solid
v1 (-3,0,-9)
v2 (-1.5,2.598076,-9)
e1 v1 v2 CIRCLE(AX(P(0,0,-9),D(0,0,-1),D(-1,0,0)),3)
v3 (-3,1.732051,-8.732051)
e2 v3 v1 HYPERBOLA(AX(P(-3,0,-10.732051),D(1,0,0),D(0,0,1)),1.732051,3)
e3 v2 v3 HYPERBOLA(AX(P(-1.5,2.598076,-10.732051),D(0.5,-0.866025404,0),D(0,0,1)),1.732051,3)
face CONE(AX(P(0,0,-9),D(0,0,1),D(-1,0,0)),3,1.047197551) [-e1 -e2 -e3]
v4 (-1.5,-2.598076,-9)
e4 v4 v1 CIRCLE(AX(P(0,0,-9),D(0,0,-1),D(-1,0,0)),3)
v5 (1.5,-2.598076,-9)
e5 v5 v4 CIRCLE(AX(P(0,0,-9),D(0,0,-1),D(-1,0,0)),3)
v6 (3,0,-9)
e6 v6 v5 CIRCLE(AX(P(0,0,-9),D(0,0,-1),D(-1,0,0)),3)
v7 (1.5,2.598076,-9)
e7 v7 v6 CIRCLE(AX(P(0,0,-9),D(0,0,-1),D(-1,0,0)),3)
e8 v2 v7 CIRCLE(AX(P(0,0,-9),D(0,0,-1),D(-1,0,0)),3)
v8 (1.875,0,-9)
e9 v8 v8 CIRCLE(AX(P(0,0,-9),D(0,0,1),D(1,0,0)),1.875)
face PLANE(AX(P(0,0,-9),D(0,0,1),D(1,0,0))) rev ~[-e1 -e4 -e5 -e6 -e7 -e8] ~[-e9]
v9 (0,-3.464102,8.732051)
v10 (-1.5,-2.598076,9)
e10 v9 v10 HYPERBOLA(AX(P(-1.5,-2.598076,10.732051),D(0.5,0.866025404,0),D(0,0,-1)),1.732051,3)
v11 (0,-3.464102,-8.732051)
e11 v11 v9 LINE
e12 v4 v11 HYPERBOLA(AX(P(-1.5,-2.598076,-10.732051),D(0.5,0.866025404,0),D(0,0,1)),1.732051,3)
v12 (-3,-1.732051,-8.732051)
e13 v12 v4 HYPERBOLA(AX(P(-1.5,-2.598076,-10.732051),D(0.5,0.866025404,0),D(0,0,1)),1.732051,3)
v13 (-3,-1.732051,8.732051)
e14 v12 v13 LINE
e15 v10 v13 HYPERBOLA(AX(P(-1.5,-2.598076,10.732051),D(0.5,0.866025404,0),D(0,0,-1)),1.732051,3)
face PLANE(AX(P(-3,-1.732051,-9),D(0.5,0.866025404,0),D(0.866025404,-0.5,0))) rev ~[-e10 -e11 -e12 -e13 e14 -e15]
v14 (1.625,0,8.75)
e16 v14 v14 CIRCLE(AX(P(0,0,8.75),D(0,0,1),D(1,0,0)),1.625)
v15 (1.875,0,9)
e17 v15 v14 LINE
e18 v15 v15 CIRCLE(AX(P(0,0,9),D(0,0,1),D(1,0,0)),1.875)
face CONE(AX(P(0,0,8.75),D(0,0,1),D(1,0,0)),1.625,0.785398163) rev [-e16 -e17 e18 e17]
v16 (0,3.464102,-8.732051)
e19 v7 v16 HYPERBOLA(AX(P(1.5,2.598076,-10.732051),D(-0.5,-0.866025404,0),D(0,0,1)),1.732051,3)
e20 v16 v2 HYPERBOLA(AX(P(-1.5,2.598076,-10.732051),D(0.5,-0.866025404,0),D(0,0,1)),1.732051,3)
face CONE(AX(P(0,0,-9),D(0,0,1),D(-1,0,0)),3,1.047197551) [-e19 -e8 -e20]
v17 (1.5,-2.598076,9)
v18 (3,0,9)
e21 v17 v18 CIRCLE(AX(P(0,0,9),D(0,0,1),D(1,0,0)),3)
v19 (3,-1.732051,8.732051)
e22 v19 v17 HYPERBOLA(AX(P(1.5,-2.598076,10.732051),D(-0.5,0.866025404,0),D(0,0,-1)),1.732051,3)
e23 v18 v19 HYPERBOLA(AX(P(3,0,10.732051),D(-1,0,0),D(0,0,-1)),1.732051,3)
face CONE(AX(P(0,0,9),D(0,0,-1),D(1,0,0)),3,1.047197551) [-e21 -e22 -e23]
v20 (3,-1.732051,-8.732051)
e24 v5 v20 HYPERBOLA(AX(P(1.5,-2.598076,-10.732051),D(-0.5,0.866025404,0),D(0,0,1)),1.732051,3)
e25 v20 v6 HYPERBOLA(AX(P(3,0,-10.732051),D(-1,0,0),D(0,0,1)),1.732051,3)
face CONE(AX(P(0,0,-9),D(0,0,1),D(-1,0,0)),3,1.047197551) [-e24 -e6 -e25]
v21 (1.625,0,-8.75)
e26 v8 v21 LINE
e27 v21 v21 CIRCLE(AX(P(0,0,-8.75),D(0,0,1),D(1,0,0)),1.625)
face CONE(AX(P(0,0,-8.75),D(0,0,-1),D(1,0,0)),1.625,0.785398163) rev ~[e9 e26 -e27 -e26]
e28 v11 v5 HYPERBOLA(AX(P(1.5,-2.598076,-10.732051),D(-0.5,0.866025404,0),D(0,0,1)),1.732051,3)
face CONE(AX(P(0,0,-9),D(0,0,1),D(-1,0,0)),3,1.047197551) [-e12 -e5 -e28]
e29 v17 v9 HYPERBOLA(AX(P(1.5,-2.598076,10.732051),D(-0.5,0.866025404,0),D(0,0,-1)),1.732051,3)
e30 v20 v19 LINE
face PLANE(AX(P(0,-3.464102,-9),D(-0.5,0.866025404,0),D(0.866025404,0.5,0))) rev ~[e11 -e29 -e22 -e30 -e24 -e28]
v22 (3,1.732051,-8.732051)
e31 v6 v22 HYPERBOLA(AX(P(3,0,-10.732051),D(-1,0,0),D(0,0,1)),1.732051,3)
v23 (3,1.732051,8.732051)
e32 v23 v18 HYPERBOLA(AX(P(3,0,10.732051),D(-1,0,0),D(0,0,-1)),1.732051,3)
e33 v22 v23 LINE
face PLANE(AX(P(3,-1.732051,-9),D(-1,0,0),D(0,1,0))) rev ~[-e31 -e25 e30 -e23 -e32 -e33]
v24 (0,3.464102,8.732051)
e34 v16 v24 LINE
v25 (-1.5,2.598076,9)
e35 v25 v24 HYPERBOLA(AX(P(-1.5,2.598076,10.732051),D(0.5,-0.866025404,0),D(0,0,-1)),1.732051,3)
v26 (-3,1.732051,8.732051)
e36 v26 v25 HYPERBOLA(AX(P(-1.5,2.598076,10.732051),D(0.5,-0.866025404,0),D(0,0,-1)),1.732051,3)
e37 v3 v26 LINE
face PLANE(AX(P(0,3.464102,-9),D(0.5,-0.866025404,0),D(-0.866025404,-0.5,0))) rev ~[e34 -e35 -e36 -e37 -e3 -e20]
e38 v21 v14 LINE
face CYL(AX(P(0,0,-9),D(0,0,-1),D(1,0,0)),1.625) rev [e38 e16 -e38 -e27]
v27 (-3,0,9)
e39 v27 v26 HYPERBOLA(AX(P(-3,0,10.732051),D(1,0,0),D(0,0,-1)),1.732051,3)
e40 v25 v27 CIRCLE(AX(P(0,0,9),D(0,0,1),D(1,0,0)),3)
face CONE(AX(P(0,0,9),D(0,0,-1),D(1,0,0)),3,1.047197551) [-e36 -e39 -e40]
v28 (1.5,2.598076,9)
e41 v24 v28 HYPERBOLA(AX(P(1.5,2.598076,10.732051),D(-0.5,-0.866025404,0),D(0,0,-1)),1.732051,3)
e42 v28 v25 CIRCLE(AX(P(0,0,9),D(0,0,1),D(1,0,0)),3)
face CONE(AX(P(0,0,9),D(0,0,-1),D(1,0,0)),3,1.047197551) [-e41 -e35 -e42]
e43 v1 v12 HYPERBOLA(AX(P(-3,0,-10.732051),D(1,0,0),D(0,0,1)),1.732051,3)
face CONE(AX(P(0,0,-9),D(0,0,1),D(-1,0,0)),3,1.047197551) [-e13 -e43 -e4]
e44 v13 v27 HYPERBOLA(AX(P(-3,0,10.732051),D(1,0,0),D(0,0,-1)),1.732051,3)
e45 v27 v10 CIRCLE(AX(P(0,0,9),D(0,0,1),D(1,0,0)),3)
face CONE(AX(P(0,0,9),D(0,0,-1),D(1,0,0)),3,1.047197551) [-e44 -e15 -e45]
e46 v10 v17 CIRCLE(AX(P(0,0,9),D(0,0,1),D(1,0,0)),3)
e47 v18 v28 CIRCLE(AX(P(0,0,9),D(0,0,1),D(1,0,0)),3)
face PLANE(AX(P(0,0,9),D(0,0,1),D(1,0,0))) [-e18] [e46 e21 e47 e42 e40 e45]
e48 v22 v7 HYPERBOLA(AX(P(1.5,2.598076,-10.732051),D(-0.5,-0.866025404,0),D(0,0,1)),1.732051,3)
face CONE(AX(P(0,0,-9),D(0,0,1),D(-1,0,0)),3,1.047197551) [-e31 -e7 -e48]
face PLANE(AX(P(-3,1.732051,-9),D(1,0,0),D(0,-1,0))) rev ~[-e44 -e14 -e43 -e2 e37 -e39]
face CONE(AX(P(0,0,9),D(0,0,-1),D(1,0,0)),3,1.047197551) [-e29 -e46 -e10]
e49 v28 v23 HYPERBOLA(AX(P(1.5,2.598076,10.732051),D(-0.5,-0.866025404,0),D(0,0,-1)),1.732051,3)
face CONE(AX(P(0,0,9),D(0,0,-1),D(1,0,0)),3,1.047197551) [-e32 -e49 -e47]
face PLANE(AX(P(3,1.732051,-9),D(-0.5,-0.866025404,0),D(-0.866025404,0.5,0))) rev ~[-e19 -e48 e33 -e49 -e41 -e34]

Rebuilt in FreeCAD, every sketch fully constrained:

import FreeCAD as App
import Part
import Sketcher
Q = App.Units.Quantity


def edges_at(feature, points):
    """Names of the edges that pass closest to the given points."""
    edges = feature.Shape.Edges
    near = lambda p: min(range(len(edges)), key=lambda i: edges[i].distToShape(Part.Vertex(*p))[0])
    return sorted({f"Edge{near(p) + 1}" for p in points})


def faces_at(feature, points):
    """Names of the faces that lie closest to the given points."""
    faces = feature.Shape.Faces
    near = lambda p: min(range(len(faces)), key=lambda i: faces[i].distToShape(Part.Vertex(*p))[0])
    return sorted({f"Face{near(p) + 1}" for p in points})


def add_polygon(sketch, points):
    """Adds a closed chain of lines whose ends are joined by coincident constraints."""
    first, n = sketch.GeometryCount, len(points)
    for a, b in zip(points, points[1:] + points[:1]):
        sketch.addGeometry(Part.LineSegment(App.Vector(*a, 0), App.Vector(*b, 0)), False)
    for i in range(n):
        sketch.addConstraint(Sketcher.Constraint("Coincident", first + i, 2, first + (i + 1) % n, 1))

doc = App.newDocument("Part")
body = doc.addObject("PartDesign::Body", "Body")

# Sketch on XY plane
sketch1 = body.newObject("Sketcher::SketchObject", "Sketch")
sketch1.AttachmentSupport = (doc.getObject("XY_Plane"), [""])
sketch1.MapMode = "FlatFace"
add_polygon(sketch1, [(0, 3.5), (-3, 1.7), (-3, -1.7), (0, -3.5), (3, -1.7), (3, 1.7)])  # lines 0-5
sketch1.addGeometry(Part.Circle(App.Vector(0, 0, 0), App.Vector(0, 0, 1), 1.6), False)  # 6
sketch1.addConstraint([
    Sketcher.Constraint("Vertical", 1),
    Sketcher.Constraint("Vertical", 4),
    Sketcher.Constraint("Coincident", 6, 3, -1, 1),
    Sketcher.Constraint("Symmetric", 0, 2, 3, 2, -1, 1),
    Sketcher.Constraint("Symmetric", 2, 2, 5, 2, -1, 1),
    Sketcher.Constraint("PointOnObject", 2, 2, -2),
    Sketcher.Constraint("Parallel", 2, 5),
    Sketcher.Constraint("Horizontal", 1, 2, 3, 2),
    Sketcher.Constraint("Diameter", 6, 3.25),
    Sketcher.Constraint("Angle", 0, Q("-150 deg")),
    Sketcher.Constraint("DistanceX", 0, 2, -1, 1, 3.0),
    Sketcher.Constraint("DistanceY", 1, 2, 1, 1, 3.464102),
])
pad1 = body.newObject("PartDesign::Pad", "Pad")
pad1.Profile = sketch1
pad1.Type = "TwoLengths"
pad1.Length = 9
pad1.Length2 = 9
body2 = doc.addObject("PartDesign::Body", "Body001")

# Sketch on XY plane
sketch2 = body2.newObject("Sketcher::SketchObject", "Sketch001")
sketch2.AttachmentSupport = (doc.getObject("XY_Plane001"), [""])
sketch2.MapMode = "FlatFace"
sketch2.AttachmentOffset = App.Placement(App.Vector(0, 0, -9), App.Rotation())
add_polygon(sketch2, [(39.9, 40.4), (39.9, -40.4), (-39.9, -40.4), (-39.9, 40.4)])  # lines 0-3
sketch2.addGeometry(Part.Circle(App.Vector(0, 0, 0), App.Vector(0, 0, 1), 3), False)  # 4
sketch2.addConstraint([
    Sketcher.Constraint("Vertical", 0),
    Sketcher.Constraint("Horizontal", 1),
    Sketcher.Constraint("Vertical", 2),
    Sketcher.Constraint("Horizontal", 3),
    Sketcher.Constraint("Coincident", 4, 3, -1, 1),
    Sketcher.Constraint("Symmetric", 0, 2, 2, 2, -1, 1),
    Sketcher.Constraint("Diameter", 4, 6.0),
    Sketcher.Constraint("DistanceX", 1, 2, 1, 1, 79.846),
    Sketcher.Constraint("DistanceY", 0, 2, 0, 1, 80.774),
])
pad2 = body2.newObject("PartDesign::Pad", "Pad001")
pad2.Profile = sketch2
pad2.Length = 19.574176
doc.recompute()

datumplane = body2.newObject("PartDesign::Plane", "DatumPlane")
datumplane.AttachmentSupport = (doc.getObject("XY_Plane001"), [""])
datumplane.MapMode = "FlatFace"
datumplane.AttachmentOffset = App.Placement(App.Vector(0, 0, -9), App.Rotation())
draft = body2.newObject("PartDesign::Draft", "Draft")
draft.Base = (pad2, faces_at(pad2, [
    (0, -40.387, 0.787),
    (-39.923, 0, 0.787),
    (0, 40.387, 0.787),
    (39.923, 0, 0.787),
    (3, 0, 0.787),
]))
draft.NeutralPlane = (datumplane, [""])
draft.Angle = 60
draft.Reversed = False
doc.recompute()

boolean = body.newObject("PartDesign::Boolean", "Boolean")
boolean.Type = "Cut"
boolean.addObjects([body2])
body3 = doc.addObject("PartDesign::Body", "Body002")

# Sketch on XY plane
sketch3 = body3.newObject("Sketcher::SketchObject", "Sketch002")
sketch3.AttachmentSupport = (doc.getObject("XY_Plane002"), [""])
sketch3.MapMode = "FlatFace"
sketch3.AttachmentOffset = App.Placement(App.Vector(0, 0, 9), App.Rotation())
add_polygon(sketch3, [(-39.9, 40.4), (-39.9, -40.4), (39.9, -40.4), (39.9, 40.4)])  # lines 0-3
sketch3.addGeometry(Part.Circle(App.Vector(0, 0, 0), App.Vector(0, 0, 1), 3), False)  # 4
sketch3.addConstraint([
    Sketcher.Constraint("Vertical", 0),
    Sketcher.Constraint("Horizontal", 1),
    Sketcher.Constraint("Vertical", 2),
    Sketcher.Constraint("Horizontal", 3),
    Sketcher.Constraint("Coincident", 4, 3, -1, 1),
    Sketcher.Constraint("Symmetric", 0, 2, 2, 2, -1, 1),
    Sketcher.Constraint("Diameter", 4, 6.0),
    Sketcher.Constraint("DistanceX", 1, 1, 1, 2, 79.846),
    Sketcher.Constraint("DistanceY", 0, 2, 0, 1, 80.774),
])
pad3 = body3.newObject("PartDesign::Pad", "Pad002")
pad3.Profile = sketch3
pad3.Length = 19.574176
pad3.Reversed = True
doc.recompute()

datumplane2 = body3.newObject("PartDesign::Plane", "DatumPlane001")
datumplane2.AttachmentSupport = (doc.getObject("XY_Plane002"), [""])
datumplane2.MapMode = "FlatFace"
datumplane2.AttachmentOffset = App.Placement(App.Vector(0, 0, 9), App.Rotation())
draft2 = body3.newObject("PartDesign::Draft", "Draft001")
draft2.Base = (pad3, faces_at(pad3, [
    (0, -40.387, -0.787),
    (39.923, 0, -0.787),
    (0, 40.387, -0.787),
    (-39.923, 0, -0.787),
    (-3, 0, -0.787),
]))
draft2.NeutralPlane = (datumplane2, [""])
draft2.Angle = 60
draft2.Reversed = True
doc.recompute()

boolean2 = body.newObject("PartDesign::Boolean", "Boolean001")
boolean2.Type = "Cut"
boolean2.addObjects([body3])
doc.recompute()

chamfer = body.newObject("PartDesign::Chamfer", "Chamfer")
chamfer.Base = (boolean2, edges_at(boolean2, [(-1.625, 0, -9), (-1.625, 0, 9)]))
chamfer.Size = 0.25

doc.recompute()
